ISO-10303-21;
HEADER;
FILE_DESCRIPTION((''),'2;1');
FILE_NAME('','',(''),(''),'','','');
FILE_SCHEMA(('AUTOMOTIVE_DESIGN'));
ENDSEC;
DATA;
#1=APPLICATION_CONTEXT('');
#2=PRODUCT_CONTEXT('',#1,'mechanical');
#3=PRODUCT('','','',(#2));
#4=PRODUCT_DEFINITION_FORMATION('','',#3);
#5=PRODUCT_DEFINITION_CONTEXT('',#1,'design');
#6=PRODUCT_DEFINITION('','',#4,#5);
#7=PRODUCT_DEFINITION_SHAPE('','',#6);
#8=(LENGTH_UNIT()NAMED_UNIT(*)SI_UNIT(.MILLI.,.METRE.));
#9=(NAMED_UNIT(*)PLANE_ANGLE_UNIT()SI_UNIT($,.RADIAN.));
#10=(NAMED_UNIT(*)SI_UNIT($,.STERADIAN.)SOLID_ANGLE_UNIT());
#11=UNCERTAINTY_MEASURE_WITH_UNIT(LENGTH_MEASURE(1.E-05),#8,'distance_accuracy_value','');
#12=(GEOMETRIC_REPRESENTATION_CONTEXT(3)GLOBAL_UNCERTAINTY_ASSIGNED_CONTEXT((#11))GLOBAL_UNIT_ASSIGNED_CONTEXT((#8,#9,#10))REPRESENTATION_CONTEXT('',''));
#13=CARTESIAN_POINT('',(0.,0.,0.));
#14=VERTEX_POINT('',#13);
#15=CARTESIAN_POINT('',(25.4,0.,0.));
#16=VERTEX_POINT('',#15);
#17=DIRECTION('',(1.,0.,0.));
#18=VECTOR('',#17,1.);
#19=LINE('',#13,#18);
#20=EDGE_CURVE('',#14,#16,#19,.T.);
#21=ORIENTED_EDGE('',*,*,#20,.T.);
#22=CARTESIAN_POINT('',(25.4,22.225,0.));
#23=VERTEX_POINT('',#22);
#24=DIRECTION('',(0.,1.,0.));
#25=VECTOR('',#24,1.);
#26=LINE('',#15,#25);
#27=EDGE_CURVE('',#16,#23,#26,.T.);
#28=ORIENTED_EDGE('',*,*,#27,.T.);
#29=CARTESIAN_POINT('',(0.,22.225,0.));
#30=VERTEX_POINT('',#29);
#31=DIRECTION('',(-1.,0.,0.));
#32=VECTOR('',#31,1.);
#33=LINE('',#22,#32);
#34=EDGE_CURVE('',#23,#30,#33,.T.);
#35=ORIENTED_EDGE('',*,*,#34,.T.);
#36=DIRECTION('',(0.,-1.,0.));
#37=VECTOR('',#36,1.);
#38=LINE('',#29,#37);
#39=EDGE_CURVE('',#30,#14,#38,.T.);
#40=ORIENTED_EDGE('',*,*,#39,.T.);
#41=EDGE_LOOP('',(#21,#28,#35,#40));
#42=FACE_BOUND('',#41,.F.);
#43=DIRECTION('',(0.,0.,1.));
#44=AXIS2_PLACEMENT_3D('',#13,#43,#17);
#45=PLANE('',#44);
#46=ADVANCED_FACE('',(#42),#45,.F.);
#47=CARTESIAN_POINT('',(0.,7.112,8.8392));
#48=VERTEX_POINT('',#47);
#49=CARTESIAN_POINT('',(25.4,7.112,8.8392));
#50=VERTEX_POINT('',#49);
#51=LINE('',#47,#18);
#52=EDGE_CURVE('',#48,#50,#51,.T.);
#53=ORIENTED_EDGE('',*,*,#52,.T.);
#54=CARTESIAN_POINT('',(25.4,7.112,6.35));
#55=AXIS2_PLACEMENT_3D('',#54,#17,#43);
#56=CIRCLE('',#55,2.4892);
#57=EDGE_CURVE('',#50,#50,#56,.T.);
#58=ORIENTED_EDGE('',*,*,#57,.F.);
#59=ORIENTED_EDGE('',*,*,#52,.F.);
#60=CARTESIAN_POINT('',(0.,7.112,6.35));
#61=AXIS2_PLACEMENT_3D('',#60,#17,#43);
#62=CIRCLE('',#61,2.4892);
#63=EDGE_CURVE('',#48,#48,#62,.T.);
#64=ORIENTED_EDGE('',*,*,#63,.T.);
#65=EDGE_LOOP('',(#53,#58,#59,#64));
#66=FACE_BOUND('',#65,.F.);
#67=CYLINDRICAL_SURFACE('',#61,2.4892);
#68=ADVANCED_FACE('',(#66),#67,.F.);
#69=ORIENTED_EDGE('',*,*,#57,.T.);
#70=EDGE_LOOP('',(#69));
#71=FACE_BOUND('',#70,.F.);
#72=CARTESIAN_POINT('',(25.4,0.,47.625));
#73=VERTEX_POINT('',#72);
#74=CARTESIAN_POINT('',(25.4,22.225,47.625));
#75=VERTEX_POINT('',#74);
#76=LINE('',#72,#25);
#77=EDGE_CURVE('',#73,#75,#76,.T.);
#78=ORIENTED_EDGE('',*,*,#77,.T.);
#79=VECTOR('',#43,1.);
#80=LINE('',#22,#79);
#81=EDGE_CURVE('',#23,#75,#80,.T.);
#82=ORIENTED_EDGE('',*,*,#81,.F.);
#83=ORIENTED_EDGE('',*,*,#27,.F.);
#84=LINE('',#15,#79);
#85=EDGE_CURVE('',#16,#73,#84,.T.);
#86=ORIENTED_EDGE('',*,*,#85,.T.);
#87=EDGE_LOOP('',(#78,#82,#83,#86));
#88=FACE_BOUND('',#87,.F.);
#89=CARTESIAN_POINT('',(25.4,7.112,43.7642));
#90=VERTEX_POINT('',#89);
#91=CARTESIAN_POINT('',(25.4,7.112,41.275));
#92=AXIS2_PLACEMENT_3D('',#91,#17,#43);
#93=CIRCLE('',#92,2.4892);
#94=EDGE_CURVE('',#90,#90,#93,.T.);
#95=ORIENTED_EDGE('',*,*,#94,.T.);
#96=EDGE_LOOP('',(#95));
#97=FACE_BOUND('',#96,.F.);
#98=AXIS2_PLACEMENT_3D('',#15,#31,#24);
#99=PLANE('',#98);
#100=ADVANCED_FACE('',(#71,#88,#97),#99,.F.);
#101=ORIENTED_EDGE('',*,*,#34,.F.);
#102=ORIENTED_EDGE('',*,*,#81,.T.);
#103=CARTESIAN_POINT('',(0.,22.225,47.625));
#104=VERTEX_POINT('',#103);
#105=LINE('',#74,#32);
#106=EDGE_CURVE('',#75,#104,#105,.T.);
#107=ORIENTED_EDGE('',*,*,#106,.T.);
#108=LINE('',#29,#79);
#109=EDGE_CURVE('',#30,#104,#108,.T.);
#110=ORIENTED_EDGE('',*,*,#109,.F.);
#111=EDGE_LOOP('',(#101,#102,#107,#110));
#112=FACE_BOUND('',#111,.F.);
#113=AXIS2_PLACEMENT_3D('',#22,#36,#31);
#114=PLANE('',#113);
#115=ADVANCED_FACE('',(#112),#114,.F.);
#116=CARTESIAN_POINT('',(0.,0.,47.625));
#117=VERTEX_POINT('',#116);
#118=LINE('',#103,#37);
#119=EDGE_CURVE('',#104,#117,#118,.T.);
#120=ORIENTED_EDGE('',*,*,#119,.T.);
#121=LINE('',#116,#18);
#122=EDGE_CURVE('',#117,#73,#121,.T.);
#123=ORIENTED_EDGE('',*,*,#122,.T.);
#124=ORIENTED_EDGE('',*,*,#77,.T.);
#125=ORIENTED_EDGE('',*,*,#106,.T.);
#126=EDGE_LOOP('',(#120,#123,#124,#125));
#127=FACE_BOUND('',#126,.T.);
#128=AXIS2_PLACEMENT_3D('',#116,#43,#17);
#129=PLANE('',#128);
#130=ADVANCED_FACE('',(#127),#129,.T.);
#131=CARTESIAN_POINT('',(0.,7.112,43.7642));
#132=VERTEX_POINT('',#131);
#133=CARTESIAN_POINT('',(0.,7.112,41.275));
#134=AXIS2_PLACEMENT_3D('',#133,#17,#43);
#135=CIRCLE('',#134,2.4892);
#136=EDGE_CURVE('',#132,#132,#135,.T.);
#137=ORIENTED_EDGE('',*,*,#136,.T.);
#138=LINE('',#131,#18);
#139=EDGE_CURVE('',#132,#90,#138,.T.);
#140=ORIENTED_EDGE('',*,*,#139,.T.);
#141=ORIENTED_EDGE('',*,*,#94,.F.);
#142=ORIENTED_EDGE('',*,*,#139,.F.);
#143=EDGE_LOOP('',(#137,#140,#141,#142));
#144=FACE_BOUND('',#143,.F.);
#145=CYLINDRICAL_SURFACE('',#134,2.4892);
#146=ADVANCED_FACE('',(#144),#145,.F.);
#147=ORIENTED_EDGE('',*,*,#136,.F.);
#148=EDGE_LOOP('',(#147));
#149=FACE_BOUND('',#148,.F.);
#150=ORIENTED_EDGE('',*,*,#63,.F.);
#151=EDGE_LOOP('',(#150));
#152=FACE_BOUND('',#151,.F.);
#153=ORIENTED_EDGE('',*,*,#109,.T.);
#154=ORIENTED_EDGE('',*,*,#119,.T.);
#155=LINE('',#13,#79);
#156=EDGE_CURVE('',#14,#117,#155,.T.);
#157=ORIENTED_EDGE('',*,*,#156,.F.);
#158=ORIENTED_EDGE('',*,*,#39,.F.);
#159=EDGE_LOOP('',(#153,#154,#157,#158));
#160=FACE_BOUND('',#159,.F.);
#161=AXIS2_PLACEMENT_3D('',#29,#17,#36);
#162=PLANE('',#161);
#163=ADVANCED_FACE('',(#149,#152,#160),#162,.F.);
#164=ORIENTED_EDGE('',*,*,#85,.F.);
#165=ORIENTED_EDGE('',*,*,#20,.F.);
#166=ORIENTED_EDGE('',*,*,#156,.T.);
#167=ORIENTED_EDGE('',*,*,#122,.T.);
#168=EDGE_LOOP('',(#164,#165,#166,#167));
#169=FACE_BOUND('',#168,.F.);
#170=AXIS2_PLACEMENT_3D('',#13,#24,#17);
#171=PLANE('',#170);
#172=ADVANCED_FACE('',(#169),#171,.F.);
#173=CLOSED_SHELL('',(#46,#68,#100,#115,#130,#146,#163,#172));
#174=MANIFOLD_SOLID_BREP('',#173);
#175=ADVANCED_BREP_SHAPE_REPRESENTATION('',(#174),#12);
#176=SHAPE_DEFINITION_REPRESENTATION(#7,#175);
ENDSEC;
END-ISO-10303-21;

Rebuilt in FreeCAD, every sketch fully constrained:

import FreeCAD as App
import Part
import Sketcher
Q = App.Units.Quantity

doc = App.newDocument("Part")
params = doc.addObject("Spreadsheet::Sheet", "Params")
for row, (alias, value) in enumerate([
    ("sketch1_width", "1 in"),
    ("sketch1_height", "0.875 in"),
    ("pad1_length", "1.875 in"),
    ("sketch2_diameter", "0.196 in"),
    ("hole_diameter", "0.196 in"),
], start=1):
    params.set(f"A{row}", alias)
    params.set(f"B{row}", "=" + value)
    params.setAlias(f"B{row}", alias)

body = doc.addObject("PartDesign::Body", "Body")

sketch1 = doc.addObject("Sketcher::SketchObject", "Sketch")
body.addObject(sketch1)
sketch1.AttachmentSupport = (doc.XY_Plane, [""])
sketch1.MapMode = "FlatFace"
sketch1.addGeometry(Part.LineSegment(App.Vector(0, 22.225, 0), App.Vector(0, 0, 0)), False)
sketch1.addGeometry(Part.LineSegment(App.Vector(0, 0, 0), App.Vector(25.4, 0, 0)), False)
sketch1.addGeometry(Part.LineSegment(App.Vector(25.4, 0, 0), App.Vector(25.4, 22.225, 0)), False)
sketch1.addGeometry(Part.LineSegment(App.Vector(25.4, 22.225, 0), App.Vector(0, 22.225, 0)), False)
sketch1.addConstraint(Sketcher.Constraint("Coincident", 0, 2, 1, 1))
sketch1.addConstraint(Sketcher.Constraint("Coincident", 1, 2, 2, 1))
sketch1.addConstraint(Sketcher.Constraint("Coincident", 2, 2, 3, 1))
sketch1.addConstraint(Sketcher.Constraint("Coincident", 3, 2, 0, 1))
sketch1.addConstraint(Sketcher.Constraint("Vertical", 0))
sketch1.addConstraint(Sketcher.Constraint("Horizontal", 1))
sketch1.addConstraint(Sketcher.Constraint("Vertical", 2))
sketch1.addConstraint(Sketcher.Constraint("Horizontal", 3))
sketch1.addConstraint(Sketcher.Constraint("Coincident", 0, 2, -1, 1))
sketch1.addConstraint(Sketcher.Constraint("DistanceX", 1, 1, 1, 2, Q("1 in")))
sketch1.addConstraint(Sketcher.Constraint("DistanceY", 0, 2, 0, 1, Q("0.875 in")))
sketch1.setExpression("Constraints[9]", "Params.sketch1_width")
sketch1.setExpression("Constraints[10]", "Params.sketch1_height")
pad1 = doc.addObject("PartDesign::Pad", "Pad")
body.addObject(pad1)
pad1.Profile = sketch1
pad1.setExpression("Length", "Params.pad1_length")

sketch2 = doc.addObject("Sketcher::SketchObject", "Sketch001")
body.addObject(sketch2)
sketch2.AttachmentSupport = (doc.YZ_Plane, [""])
sketch2.MapMode = "FlatFace"
sketch2.addGeometry(Part.Circle(App.Vector(7.112, 41.275, 0), App.Vector(0, 0, 1), 2.4892), False)
sketch2.addGeometry(Part.Circle(App.Vector(7.112, 6.35, 0), App.Vector(0, 0, 1), 2.4892), False)
sketch2.addConstraint(Sketcher.Constraint("Equal", 0, 1))
sketch2.addConstraint(Sketcher.Constraint("Vertical", 0, 3, 1, 3))
sketch2.addConstraint(Sketcher.Constraint("Diameter", 0, Q("0.196 in")))
sketch2.addConstraint(Sketcher.Constraint("DistanceX", -1, 1, 0, 3, Q("0.28 in")))
sketch2.addConstraint(Sketcher.Constraint("DistanceY", -1, 1, 1, 3, Q("0.25 in")))
sketch2.addConstraint(Sketcher.Constraint("DistanceY", -1, 1, 0, 3, Q("1.625 in")))
sketch2.setExpression("Constraints[2]", "Params.sketch2_diameter")
doc.recompute()
hole = doc.addObject("PartDesign::Hole", "Hole")
body.addObject(hole)
hole.Profile = sketch2
hole.ThreadType = "None"
hole.setExpression("Diameter", "Params.hole_diameter")
hole.DepthType = "ThroughAll"
hole.Reversed = True

doc.recompute()
